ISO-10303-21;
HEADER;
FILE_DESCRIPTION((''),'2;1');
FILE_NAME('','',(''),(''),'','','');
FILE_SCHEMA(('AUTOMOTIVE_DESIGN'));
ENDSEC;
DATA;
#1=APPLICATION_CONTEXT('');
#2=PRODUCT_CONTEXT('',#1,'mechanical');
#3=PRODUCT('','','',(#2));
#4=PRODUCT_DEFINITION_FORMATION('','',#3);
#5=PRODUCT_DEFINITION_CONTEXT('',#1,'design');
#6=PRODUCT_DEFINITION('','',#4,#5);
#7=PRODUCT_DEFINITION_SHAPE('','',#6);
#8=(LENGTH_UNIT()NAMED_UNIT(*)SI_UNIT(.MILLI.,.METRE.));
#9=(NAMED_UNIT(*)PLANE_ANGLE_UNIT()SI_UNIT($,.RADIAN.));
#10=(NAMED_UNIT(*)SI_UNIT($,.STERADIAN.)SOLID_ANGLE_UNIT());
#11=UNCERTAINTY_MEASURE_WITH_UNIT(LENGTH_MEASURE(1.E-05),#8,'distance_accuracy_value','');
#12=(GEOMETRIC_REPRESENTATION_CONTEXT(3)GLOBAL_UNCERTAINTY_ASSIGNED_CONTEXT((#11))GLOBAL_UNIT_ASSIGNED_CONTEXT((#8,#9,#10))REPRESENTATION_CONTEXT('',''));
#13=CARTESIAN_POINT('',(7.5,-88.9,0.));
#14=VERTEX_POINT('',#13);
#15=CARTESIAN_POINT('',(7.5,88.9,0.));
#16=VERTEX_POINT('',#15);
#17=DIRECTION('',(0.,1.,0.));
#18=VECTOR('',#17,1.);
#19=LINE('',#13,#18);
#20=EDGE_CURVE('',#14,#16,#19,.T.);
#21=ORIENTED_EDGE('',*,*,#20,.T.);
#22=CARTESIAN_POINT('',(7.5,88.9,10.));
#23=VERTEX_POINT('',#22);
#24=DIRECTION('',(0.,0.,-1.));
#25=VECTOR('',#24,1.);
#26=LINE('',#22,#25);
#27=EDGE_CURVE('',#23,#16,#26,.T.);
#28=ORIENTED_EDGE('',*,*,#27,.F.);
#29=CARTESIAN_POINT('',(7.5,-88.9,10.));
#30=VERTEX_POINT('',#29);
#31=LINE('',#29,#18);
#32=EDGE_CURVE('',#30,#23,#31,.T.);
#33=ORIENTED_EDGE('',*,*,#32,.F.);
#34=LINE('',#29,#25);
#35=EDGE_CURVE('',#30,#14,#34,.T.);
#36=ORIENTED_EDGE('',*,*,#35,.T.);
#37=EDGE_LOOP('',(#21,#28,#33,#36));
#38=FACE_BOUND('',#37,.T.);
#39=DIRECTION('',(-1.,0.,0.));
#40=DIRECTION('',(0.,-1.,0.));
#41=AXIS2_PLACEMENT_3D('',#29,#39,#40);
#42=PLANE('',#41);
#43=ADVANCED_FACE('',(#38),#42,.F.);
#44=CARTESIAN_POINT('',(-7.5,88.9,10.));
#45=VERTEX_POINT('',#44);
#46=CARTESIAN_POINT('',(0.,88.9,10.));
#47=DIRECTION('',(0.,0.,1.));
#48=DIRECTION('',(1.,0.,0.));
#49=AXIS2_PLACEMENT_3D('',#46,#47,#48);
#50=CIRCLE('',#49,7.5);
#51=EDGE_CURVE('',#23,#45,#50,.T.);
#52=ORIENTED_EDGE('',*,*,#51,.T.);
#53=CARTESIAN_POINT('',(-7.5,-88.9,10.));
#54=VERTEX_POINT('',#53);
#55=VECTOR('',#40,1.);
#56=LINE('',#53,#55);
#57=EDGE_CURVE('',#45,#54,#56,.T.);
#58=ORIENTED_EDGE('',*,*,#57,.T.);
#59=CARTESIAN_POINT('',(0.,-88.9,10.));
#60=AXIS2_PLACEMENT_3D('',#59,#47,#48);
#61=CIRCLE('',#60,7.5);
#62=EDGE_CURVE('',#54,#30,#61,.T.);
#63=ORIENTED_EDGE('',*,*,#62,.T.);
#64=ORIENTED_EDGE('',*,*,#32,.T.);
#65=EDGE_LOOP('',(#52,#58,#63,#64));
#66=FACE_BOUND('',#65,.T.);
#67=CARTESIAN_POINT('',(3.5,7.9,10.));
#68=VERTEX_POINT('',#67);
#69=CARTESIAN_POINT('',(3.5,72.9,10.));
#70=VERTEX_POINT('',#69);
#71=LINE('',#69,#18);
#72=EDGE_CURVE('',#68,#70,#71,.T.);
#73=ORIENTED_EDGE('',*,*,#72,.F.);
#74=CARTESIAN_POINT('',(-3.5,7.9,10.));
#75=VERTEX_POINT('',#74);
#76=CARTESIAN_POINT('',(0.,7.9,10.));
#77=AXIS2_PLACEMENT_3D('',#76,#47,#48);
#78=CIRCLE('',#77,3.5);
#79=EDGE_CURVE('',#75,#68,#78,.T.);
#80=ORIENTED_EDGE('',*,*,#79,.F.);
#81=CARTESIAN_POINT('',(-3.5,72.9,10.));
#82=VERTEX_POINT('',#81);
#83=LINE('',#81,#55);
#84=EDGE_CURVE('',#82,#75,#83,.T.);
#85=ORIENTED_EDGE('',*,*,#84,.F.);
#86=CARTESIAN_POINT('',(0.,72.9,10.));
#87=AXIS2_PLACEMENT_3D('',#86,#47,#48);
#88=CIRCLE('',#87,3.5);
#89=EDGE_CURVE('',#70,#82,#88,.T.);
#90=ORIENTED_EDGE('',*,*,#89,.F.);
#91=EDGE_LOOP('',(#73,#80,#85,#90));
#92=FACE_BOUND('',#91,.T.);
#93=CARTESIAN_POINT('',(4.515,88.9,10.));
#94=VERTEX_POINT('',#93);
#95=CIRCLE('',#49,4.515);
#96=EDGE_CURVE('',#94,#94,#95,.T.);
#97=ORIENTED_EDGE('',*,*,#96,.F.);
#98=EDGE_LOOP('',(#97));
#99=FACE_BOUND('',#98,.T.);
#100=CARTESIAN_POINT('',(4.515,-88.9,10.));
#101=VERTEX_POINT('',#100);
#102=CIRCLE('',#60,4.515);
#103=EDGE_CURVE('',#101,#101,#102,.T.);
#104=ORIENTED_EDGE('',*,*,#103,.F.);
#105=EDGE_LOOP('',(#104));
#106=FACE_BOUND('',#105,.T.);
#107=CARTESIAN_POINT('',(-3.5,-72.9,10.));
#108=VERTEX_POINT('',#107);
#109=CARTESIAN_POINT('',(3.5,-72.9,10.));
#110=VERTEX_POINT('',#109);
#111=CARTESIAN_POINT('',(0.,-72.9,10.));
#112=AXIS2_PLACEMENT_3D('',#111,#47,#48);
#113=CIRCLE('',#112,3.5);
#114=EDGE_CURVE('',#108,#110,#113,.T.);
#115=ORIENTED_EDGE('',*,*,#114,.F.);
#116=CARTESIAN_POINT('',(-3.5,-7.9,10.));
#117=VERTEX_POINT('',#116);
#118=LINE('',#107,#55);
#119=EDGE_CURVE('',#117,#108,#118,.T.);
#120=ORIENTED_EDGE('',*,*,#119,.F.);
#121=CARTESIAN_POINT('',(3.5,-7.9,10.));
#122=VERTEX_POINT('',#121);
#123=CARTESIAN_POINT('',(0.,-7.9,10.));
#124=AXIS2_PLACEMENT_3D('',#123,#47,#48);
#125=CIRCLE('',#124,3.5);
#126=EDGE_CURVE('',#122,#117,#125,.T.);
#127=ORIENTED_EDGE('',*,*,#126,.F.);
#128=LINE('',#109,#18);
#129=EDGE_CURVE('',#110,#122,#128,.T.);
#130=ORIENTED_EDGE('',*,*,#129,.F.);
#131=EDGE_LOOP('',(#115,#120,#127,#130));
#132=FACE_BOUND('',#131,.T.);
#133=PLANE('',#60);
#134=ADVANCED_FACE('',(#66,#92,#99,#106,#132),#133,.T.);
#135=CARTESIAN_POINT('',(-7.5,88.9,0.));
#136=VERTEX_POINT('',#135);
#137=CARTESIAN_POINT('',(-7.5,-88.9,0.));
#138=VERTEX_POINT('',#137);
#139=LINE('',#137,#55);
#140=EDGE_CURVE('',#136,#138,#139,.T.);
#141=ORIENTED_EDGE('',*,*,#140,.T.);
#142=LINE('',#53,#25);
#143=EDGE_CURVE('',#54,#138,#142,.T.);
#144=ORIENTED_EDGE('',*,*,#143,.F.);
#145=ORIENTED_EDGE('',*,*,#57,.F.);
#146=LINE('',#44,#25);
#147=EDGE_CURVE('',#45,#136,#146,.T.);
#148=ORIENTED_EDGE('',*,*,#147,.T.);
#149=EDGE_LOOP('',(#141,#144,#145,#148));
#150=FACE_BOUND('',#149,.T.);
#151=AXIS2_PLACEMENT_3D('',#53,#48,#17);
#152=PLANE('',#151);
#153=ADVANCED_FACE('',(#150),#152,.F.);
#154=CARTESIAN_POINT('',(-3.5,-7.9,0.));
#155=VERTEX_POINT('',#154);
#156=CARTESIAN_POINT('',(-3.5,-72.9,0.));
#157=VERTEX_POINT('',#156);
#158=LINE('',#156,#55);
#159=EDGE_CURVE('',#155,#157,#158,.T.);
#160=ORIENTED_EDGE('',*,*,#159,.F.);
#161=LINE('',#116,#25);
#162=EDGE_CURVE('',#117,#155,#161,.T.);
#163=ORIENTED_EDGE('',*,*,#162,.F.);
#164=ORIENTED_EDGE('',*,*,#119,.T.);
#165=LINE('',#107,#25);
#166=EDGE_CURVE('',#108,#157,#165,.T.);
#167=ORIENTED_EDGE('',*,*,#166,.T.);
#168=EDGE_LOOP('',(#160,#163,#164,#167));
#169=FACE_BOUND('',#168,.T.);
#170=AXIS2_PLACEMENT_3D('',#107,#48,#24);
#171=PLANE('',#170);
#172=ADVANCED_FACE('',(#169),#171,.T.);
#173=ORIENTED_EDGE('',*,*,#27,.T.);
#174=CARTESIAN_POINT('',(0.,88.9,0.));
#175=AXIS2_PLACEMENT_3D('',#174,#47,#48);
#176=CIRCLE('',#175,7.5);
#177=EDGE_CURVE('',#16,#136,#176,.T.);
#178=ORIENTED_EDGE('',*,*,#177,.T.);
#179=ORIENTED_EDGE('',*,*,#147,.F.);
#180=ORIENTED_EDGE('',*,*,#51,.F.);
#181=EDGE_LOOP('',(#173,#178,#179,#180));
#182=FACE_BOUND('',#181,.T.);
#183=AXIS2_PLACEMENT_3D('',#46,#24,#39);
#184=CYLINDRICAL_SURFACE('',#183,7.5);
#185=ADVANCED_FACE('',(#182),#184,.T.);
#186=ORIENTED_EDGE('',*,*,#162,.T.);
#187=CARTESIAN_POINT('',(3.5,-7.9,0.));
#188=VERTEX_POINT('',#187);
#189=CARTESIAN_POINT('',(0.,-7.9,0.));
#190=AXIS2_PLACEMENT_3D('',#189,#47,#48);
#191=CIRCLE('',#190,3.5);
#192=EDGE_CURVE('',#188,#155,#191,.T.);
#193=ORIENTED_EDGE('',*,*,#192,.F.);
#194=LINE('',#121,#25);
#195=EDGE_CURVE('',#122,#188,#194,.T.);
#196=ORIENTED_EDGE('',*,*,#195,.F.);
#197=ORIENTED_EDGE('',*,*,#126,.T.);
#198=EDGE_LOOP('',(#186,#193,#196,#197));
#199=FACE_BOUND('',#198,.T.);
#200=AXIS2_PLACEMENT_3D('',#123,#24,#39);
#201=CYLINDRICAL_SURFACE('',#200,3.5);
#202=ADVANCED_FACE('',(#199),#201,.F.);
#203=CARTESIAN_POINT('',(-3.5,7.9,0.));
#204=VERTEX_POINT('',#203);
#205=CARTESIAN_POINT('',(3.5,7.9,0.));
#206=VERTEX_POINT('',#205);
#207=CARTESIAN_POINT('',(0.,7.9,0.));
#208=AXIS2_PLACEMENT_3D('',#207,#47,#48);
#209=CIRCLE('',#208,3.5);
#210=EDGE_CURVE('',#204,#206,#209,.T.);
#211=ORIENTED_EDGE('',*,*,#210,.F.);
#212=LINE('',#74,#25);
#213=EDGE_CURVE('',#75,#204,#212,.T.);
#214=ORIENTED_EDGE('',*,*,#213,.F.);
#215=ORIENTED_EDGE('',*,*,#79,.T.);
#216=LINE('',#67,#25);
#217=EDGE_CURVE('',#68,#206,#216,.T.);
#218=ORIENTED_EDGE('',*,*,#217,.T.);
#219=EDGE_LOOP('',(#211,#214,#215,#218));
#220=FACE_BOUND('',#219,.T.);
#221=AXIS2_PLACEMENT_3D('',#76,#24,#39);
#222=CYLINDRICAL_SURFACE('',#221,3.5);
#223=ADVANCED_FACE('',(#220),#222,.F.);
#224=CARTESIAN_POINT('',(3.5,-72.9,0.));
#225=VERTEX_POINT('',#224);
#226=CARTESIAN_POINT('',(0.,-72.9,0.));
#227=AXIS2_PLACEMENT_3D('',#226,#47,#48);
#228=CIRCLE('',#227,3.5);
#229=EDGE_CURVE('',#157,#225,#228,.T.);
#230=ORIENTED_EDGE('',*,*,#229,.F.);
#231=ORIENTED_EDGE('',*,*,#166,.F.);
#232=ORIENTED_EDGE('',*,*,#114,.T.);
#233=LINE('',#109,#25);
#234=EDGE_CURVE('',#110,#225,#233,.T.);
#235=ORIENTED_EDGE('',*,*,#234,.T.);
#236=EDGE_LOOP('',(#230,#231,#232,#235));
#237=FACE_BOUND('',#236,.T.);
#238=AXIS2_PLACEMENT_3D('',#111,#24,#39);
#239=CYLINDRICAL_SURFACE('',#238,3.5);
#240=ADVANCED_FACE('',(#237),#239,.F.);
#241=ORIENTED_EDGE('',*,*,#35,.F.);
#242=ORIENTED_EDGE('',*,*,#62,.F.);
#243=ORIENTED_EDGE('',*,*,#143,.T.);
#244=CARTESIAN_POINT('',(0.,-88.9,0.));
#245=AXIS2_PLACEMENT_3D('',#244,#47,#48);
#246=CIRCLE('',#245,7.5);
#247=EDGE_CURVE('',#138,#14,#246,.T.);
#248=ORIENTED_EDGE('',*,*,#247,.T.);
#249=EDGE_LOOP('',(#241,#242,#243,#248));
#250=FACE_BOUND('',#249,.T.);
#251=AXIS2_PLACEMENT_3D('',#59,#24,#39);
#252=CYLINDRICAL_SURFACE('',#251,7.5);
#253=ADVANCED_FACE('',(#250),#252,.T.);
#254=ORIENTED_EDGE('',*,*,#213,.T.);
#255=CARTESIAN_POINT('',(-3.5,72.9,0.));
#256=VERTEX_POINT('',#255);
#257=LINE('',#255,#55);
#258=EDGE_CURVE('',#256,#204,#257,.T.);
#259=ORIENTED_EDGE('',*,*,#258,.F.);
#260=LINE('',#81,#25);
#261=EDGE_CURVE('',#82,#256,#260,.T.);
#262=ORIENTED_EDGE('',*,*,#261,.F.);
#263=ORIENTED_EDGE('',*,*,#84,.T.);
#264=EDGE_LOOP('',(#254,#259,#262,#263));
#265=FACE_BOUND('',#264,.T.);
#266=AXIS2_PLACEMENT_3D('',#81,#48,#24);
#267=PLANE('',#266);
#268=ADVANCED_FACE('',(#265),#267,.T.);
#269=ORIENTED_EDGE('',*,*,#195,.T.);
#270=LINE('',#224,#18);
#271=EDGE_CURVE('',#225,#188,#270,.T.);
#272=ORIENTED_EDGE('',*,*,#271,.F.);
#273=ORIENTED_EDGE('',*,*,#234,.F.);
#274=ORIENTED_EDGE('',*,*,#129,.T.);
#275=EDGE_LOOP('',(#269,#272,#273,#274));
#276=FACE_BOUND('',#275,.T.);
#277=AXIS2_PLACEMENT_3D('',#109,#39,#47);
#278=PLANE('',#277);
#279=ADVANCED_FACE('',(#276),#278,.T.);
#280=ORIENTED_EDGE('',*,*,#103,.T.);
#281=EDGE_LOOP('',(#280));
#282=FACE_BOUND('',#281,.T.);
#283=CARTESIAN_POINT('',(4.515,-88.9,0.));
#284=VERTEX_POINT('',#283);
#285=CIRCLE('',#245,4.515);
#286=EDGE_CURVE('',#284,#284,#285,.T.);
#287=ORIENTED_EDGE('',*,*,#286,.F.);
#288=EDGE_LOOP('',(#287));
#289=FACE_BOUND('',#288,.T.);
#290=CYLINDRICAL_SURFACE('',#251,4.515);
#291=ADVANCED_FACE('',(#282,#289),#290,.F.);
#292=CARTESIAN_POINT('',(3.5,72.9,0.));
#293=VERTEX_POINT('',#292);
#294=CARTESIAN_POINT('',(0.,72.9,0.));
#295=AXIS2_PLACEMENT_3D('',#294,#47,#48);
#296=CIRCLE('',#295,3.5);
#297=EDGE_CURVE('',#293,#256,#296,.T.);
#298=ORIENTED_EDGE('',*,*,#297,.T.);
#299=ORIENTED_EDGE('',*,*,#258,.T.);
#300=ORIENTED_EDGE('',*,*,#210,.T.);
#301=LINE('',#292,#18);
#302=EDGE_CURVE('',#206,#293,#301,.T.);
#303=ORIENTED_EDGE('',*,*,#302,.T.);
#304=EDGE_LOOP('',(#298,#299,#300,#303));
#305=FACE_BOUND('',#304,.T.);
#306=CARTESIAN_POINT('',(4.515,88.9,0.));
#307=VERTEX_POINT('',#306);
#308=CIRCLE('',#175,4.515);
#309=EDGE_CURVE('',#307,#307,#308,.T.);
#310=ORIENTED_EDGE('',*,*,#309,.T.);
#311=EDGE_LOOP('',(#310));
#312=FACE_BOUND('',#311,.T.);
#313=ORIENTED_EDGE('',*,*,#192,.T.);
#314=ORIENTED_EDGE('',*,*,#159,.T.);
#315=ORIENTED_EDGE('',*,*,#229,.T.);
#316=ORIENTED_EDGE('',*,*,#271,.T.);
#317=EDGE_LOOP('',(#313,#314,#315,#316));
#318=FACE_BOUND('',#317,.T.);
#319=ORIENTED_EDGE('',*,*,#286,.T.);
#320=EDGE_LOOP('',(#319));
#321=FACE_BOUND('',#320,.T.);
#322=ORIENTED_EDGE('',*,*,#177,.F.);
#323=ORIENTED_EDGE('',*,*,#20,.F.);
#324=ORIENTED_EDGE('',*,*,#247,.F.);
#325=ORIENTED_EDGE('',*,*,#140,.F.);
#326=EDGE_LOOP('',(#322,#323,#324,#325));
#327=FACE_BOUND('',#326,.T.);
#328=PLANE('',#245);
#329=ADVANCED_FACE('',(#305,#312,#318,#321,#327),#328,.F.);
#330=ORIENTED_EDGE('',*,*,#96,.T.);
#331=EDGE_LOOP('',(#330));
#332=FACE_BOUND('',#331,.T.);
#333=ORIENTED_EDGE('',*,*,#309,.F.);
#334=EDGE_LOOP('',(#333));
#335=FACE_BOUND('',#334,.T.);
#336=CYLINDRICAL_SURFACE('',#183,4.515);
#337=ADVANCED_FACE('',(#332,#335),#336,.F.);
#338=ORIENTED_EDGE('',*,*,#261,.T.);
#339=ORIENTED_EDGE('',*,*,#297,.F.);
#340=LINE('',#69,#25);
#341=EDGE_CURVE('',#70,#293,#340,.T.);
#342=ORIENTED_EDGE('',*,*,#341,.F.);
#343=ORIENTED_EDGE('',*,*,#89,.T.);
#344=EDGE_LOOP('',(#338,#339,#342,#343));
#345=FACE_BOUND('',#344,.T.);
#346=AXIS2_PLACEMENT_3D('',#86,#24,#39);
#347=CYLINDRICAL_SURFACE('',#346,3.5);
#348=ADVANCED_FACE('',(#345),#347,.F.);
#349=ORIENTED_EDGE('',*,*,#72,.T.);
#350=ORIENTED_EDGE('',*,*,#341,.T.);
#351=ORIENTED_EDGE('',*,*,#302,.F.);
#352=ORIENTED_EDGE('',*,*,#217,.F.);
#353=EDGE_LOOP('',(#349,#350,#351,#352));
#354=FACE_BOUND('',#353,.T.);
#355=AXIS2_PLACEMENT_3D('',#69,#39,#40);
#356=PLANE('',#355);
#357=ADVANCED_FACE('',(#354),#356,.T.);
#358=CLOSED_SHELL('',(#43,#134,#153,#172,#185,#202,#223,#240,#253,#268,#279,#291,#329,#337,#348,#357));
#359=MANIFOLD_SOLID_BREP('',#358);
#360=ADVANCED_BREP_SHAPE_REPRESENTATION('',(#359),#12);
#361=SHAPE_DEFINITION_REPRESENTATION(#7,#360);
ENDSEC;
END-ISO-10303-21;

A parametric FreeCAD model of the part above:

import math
import FreeCAD as App
import Part
import Sketcher
Q = App.Units.Quantity

doc = App.newDocument("Part")
body = doc.addObject("PartDesign::Body", "Body")

sketch1 = body.newObject("Sketcher::SketchObject", "Sketch")
sketch1.AttachmentSupport = (doc.getObject("XY_Plane"), [""])
sketch1.MapMode = "FlatFace"
sketch1.addGeometry(Part.LineSegment(App.Vector(-7.5, 88.9, 0), App.Vector(-7.5, -88.9, 0)), False)
sketch1.addGeometry(Part.ArcOfCircle(Part.Circle(App.Vector(0, -88.9, 0), App.Vector(0, 0, 1), 7.5), math.radians(180), math.radians(360)), False)
sketch1.addGeometry(Part.LineSegment(App.Vector(7.5, -88.9, 0), App.Vector(7.5, 88.9, 0)), False)
sketch1.addGeometry(Part.ArcOfCircle(Part.Circle(App.Vector(0, 88.9, 0), App.Vector(0, 0, 1), 7.5), math.radians(0), math.radians(180)), False)
sketch1.addGeometry(Part.Circle(App.Vector(0, -88.9, 0), App.Vector(0, 0, 1), 4.515), False)
sketch1.addGeometry(Part.LineSegment(App.Vector(-3.5, -72.9, 0), App.Vector(-3.5, -7.9, 0)), False)
sketch1.addGeometry(Part.ArcOfCircle(Part.Circle(App.Vector(0, -7.9, 0), App.Vector(0, 0, 1), 3.5), math.radians(0), math.radians(180)), False)
sketch1.addGeometry(Part.LineSegment(App.Vector(3.5, -7.9, 0), App.Vector(3.5, -72.9, 0)), False)
sketch1.addGeometry(Part.ArcOfCircle(Part.Circle(App.Vector(0, -72.9, 0), App.Vector(0, 0, 1), 3.5), math.radians(180), math.radians(360)), False)
sketch1.addGeometry(Part.LineSegment(App.Vector(3.5, 72.9, 0), App.Vector(3.5, 7.9, 0)), False)
sketch1.addGeometry(Part.ArcOfCircle(Part.Circle(App.Vector(0, 7.9, 0), App.Vector(0, 0, 1), 3.5), math.radians(180), math.radians(360)), False)
sketch1.addGeometry(Part.LineSegment(App.Vector(-3.5, 7.9, 0), App.Vector(-3.5, 72.9, 0)), False)
sketch1.addGeometry(Part.ArcOfCircle(Part.Circle(App.Vector(0, 72.9, 0), App.Vector(0, 0, 1), 3.5), math.radians(0), math.radians(180)), False)
sketch1.addGeometry(Part.Circle(App.Vector(0, 88.9, 0), App.Vector(0, 0, 1), 4.515), False)
sketch1.addConstraint(Sketcher.Constraint("Tangent", 0, 2, 1, 1))
sketch1.addConstraint(Sketcher.Constraint("Tangent", 1, 2, 2, 1))
sketch1.addConstraint(Sketcher.Constraint("Tangent", 2, 2, 3, 1))
sketch1.addConstraint(Sketcher.Constraint("Tangent", 3, 2, 0, 1))
sketch1.addConstraint(Sketcher.Constraint("Tangent", 5, 2, 6, 2))
sketch1.addConstraint(Sketcher.Constraint("Tangent", 6, 1, 7, 1))
sketch1.addConstraint(Sketcher.Constraint("Tangent", 7, 2, 8, 2))
sketch1.addConstraint(Sketcher.Constraint("Tangent", 8, 1, 5, 1))
sketch1.addConstraint(Sketcher.Constraint("Tangent", 9, 2, 10, 2))
sketch1.addConstraint(Sketcher.Constraint("Tangent", 10, 1, 11, 1))
sketch1.addConstraint(Sketcher.Constraint("Tangent", 11, 2, 12, 2))
sketch1.addConstraint(Sketcher.Constraint("Tangent", 12, 1, 9, 1))
sketch1.addConstraint(Sketcher.Constraint("Vertical", 0))
sketch1.addConstraint(Sketcher.Constraint("Vertical", 2))
sketch1.addConstraint(Sketcher.Constraint("Vertical", 5))
sketch1.addConstraint(Sketcher.Constraint("Vertical", 7))
sketch1.addConstraint(Sketcher.Constraint("Vertical", 9))
sketch1.addConstraint(Sketcher.Constraint("Vertical", 11))
sketch1.addConstraint(Sketcher.Constraint("Coincident", 4, 3, 1, 3))
sketch1.addConstraint(Sketcher.Constraint("Coincident", 13, 3, 3, 3))
sketch1.addConstraint(Sketcher.Constraint("Equal", 8, 10))
sketch1.addConstraint(Sketcher.Constraint("Equal", 4, 13))
sketch1.addConstraint(Sketcher.Constraint("Symmetric", 1, 3, 3, 3, -1, 1))
sketch1.addConstraint(Sketcher.Constraint("Symmetric", 6, 3, 10, 3, -1, 1))
sketch1.addConstraint(Sketcher.Constraint("Symmetric", 8, 3, 12, 3, -1))
sketch1.addConstraint(Sketcher.Constraint("Radius", 1, Q("7.5 mm")))
sketch1.addConstraint(Sketcher.Constraint("Radius", 6, Q("3.5 mm")))
sketch1.addConstraint(Sketcher.Constraint("Diameter", 4, Q("9.03 mm")))
sketch1.addConstraint(Sketcher.Constraint("DistanceY", 5, 1, 5, 2, Q("65 mm")))
sketch1.addConstraint(Sketcher.Constraint("DistanceY", 0, 2, 0, 1, Q("177.8 mm")))
sketch1.addConstraint(Sketcher.Constraint("DistanceY", 1, 3, 6, 3, Q("81 mm")))
pad1 = body.newObject("PartDesign::Pad", "Pad")
pad1.Profile = sketch1
pad1.Length = 10

doc.recompute()
